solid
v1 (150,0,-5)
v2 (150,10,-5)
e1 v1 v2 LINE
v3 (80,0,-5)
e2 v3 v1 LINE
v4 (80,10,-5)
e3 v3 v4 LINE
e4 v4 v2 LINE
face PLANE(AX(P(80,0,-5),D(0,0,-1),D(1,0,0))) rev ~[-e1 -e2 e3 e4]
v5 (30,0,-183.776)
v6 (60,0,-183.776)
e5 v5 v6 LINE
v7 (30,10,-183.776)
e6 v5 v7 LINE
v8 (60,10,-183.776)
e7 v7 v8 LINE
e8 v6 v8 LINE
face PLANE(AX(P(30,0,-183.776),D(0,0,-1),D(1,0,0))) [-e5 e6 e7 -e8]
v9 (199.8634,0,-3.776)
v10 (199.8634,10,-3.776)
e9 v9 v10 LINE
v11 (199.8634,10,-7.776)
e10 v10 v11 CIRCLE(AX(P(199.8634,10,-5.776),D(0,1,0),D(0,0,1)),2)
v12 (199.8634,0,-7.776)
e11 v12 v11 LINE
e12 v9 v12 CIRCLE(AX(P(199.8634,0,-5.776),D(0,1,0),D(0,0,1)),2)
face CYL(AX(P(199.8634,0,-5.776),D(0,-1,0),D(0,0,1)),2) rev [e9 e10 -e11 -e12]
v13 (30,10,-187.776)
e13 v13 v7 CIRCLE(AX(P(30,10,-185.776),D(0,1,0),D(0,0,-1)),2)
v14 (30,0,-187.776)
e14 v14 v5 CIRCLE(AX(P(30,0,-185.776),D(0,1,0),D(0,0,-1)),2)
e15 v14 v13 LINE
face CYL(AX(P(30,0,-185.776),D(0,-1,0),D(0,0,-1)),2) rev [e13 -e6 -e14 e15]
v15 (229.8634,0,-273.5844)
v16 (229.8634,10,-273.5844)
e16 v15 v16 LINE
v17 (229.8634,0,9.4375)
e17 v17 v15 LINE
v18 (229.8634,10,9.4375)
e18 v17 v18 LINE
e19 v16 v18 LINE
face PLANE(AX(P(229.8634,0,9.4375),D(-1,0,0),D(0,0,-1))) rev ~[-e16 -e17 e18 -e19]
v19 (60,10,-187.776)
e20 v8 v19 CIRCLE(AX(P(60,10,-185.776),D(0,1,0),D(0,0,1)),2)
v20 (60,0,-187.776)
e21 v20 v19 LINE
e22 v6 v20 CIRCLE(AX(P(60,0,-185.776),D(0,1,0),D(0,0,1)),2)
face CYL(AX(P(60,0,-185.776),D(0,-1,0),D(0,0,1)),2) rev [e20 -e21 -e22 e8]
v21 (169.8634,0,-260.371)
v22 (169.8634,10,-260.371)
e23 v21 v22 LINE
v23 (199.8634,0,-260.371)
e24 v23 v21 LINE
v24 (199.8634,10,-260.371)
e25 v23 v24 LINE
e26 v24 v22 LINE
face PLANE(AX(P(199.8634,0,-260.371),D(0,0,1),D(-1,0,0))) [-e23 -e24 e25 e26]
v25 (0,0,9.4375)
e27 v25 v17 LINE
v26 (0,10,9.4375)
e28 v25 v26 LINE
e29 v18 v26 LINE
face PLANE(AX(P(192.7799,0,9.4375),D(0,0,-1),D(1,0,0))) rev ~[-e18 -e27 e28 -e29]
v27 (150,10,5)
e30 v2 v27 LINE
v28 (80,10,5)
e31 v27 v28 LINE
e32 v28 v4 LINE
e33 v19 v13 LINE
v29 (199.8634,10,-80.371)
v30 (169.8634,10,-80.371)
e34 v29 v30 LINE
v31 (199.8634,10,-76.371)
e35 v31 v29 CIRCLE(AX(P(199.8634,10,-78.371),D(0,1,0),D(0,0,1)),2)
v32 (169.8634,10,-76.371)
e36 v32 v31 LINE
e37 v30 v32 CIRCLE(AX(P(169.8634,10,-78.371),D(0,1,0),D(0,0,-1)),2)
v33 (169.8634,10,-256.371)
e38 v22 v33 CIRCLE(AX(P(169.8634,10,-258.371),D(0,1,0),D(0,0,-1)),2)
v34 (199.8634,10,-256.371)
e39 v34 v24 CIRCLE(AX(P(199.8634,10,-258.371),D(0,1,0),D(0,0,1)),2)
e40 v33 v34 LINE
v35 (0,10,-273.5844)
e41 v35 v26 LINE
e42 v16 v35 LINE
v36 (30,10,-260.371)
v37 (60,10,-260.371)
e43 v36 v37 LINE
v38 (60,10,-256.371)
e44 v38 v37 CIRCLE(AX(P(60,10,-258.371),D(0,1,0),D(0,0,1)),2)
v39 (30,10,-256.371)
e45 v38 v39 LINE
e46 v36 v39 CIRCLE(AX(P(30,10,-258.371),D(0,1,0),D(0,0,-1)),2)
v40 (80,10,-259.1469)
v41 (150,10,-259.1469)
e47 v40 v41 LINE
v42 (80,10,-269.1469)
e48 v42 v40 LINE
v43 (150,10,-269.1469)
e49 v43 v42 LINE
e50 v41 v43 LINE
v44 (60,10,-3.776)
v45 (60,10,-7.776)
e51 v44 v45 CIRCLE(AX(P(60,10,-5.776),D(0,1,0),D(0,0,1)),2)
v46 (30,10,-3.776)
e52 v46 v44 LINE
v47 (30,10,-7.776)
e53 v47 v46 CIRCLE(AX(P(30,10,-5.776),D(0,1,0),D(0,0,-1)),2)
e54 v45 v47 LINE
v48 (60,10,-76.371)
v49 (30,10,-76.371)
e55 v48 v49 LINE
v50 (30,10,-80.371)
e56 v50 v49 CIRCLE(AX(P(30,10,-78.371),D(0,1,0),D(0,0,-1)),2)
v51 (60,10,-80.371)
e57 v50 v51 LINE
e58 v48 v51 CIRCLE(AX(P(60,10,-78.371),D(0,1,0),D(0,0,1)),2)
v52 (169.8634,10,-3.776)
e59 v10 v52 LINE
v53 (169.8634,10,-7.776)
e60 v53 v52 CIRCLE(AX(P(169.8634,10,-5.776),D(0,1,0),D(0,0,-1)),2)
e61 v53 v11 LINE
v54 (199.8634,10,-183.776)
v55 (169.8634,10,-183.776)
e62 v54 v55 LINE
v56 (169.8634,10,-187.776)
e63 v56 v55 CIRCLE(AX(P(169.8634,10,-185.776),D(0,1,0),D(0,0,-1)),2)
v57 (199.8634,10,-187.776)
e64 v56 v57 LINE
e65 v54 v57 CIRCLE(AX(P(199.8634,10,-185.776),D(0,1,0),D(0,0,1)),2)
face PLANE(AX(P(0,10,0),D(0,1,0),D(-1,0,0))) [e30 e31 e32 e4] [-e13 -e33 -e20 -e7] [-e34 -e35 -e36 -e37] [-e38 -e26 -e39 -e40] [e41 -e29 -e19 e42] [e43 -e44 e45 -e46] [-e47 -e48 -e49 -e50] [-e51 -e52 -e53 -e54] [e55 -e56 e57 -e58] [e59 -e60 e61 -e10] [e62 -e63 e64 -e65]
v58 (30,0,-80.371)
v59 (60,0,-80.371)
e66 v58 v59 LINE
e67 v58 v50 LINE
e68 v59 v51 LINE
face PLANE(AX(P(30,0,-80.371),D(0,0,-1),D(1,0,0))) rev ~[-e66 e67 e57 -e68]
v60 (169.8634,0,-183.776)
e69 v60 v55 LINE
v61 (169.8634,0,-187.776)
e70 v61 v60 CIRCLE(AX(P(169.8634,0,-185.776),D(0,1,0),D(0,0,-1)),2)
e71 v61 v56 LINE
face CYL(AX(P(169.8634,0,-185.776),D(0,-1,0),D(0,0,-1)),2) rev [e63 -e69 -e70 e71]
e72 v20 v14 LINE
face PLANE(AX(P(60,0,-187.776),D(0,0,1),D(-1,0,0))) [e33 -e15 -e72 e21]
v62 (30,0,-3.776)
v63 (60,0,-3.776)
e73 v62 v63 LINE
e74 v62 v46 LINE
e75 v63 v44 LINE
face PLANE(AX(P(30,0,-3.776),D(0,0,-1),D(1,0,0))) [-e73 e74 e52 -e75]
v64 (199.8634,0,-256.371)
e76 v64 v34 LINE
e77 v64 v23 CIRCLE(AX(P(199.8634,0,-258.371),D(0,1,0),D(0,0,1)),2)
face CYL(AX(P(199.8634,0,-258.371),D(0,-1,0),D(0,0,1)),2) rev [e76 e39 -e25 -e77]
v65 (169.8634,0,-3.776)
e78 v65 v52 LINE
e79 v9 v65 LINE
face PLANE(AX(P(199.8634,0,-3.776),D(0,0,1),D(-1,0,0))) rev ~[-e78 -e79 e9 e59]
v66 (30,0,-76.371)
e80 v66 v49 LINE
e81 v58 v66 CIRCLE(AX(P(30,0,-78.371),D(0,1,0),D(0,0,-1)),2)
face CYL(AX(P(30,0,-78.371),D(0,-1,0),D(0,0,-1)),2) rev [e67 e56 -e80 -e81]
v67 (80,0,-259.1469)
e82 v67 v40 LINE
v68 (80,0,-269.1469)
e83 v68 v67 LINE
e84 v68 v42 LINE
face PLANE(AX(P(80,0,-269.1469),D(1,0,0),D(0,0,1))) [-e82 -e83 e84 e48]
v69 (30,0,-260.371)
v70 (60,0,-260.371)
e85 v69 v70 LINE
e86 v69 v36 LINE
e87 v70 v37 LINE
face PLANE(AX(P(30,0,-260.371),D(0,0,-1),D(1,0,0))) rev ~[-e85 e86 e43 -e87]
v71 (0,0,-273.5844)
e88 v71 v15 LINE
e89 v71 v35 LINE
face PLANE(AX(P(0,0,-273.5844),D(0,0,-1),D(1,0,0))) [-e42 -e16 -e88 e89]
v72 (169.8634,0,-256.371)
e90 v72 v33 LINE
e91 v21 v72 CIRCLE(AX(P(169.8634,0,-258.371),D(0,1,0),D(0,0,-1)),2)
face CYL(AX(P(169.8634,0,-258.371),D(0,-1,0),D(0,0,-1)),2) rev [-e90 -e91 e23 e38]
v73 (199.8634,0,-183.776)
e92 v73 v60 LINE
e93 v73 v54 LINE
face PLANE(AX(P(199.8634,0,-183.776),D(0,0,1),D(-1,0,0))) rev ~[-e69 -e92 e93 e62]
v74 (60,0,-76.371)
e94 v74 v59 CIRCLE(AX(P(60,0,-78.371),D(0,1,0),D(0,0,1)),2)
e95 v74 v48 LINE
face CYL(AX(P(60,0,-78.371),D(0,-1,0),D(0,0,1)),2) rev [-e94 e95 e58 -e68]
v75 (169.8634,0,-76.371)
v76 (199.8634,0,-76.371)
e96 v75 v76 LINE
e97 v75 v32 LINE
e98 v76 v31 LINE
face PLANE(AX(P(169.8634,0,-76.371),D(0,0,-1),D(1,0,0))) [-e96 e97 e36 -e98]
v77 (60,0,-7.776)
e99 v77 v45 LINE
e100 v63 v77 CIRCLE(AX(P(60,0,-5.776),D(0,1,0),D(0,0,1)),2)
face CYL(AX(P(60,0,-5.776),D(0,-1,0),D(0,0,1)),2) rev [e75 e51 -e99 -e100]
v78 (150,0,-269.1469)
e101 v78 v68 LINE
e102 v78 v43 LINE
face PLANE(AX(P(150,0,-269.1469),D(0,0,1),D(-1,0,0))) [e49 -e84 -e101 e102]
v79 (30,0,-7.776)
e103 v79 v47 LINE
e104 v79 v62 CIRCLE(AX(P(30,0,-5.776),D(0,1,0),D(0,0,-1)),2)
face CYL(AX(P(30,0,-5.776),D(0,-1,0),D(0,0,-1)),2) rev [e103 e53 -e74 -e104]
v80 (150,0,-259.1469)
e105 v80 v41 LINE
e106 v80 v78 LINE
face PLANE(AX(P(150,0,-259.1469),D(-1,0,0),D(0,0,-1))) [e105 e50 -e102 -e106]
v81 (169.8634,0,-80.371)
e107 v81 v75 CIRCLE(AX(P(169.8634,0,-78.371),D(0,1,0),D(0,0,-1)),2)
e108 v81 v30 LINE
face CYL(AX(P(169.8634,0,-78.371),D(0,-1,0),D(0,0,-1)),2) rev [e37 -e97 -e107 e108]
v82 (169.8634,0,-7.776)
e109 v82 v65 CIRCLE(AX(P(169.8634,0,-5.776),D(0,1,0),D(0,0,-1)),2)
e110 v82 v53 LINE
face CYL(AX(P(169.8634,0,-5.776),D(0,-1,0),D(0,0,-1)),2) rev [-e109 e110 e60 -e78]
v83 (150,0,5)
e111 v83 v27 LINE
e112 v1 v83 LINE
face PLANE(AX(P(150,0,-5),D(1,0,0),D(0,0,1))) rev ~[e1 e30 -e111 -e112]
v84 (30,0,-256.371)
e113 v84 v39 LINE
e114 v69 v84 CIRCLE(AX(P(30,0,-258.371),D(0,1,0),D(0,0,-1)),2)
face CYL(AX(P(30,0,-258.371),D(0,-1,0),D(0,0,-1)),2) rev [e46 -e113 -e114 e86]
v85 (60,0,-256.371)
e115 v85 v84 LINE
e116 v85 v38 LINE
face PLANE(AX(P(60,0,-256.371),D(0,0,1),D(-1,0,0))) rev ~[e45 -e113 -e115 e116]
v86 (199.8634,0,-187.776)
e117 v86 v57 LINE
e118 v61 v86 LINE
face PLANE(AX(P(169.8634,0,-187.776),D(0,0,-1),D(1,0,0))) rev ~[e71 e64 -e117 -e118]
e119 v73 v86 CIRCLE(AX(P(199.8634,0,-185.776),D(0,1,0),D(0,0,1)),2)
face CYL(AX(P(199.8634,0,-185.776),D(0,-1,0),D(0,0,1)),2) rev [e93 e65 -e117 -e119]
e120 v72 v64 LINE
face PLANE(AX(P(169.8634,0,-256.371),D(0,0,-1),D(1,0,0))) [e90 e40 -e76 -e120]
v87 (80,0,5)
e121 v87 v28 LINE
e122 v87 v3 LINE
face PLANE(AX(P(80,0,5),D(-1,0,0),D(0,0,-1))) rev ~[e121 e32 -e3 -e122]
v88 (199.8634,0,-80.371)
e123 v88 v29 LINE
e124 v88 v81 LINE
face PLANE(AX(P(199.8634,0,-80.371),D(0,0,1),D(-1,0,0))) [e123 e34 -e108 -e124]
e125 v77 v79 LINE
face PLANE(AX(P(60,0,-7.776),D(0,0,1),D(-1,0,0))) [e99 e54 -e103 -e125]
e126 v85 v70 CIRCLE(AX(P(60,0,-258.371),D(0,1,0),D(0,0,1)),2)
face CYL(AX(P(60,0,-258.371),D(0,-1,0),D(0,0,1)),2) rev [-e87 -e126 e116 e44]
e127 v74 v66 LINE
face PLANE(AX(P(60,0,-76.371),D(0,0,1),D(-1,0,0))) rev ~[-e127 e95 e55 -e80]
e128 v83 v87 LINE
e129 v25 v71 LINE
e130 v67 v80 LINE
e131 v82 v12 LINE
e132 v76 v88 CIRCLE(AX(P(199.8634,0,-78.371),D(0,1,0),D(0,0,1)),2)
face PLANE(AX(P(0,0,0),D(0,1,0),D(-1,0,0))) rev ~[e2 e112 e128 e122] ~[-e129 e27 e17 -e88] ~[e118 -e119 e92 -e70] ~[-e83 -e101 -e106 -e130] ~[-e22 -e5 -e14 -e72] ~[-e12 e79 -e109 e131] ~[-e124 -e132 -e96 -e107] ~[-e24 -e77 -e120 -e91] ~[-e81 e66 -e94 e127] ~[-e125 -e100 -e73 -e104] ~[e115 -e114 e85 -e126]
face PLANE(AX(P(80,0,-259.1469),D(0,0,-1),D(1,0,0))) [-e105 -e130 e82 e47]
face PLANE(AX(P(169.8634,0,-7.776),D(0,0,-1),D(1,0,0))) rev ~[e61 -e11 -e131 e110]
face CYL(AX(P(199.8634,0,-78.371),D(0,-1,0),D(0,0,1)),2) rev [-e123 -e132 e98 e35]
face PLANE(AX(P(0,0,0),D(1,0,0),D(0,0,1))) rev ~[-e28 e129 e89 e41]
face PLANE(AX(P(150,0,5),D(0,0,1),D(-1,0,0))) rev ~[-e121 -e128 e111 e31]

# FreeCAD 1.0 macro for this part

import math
import FreeCAD as App
import Part
import Sketcher
from FreeCAD import Vector


def add_polygon(sketch, points):
    """Adds a closed chain of lines whose ends are joined by coincident constraints."""
    first, n = sketch.GeometryCount, len(points)
    for a, b in zip(points, points[1:] + points[:1]):
        sketch.addGeometry(Part.LineSegment(App.Vector(*a, 0), App.Vector(*b, 0)), False)
    for i in range(n):
        sketch.addConstraint(Sketcher.Constraint("Coincident", first + i, 2, first + (i + 1) % n, 1))

doc = App.newDocument("Part")
params = doc.addObject("Spreadsheet::Sheet", "Params")
for row, (alias, value) in enumerate([
    ("pad1_length", "10 mm"),
    ("sketch2_radius", "2 mm"),
    ("sketch2_width", "30 mm"),
    ("pad2_length", "10 mm"),
    ("sketch4_width", "70 mm"),
    ("sketch4_height", "10 mm"),
    ("pocket2_length", "10 mm"),
    ("sketch5_radius", "2 mm"),
    ("sketch5_width", "30 mm"),
    ("pocket3_length", "10 mm"),
    ("sketch6_radius", "2 mm"),
    ("sketch6_width", "30 mm"),
    ("pocket4_length", "10 mm"),
], start=1):
    params.set(f"A{row}", alias)
    params.set(f"B{row}", "=" + value)
    params.setAlias(f"B{row}", alias)

body = doc.addObject("PartDesign::Body", "Body")

# Sketch on XZ plane
sketch1 = doc.addObject("Sketcher::SketchObject", "Sketch")
body.addObject(sketch1)
sketch1.AttachmentSupport = (doc.XZ_Plane, [""])
sketch1.MapMode = "FlatFace"
add_polygon(sketch1, [(229.8634, 9.4375), (229.8634, -273.5844), (0, -273.5844), (0, 9.4375)])  # lines 0-3
sketch1.addConstraint([
    Sketcher.Constraint("Vertical", 0),
    Sketcher.Constraint("Horizontal", 1),
    Sketcher.Constraint("Vertical", 2),
    Sketcher.Constraint("Horizontal", 3),
    Sketcher.Constraint("PointOnObject", 1, 2, -2),
    Sketcher.Constraint("DistanceX", 1, 2, 1, 1, 229.8634),
    Sketcher.Constraint("DistanceY", 0, 2, 0, 1, 283.022),
    Sketcher.Constraint("DistanceY", 0, 2, -1, 1, 273.5844),
])
pad1 = doc.addObject("PartDesign::Pad", "Pad")
body.addObject(pad1)
pad1.Profile = sketch1
pad1.setExpression("Length", "Params.pad1_length")
pad1.Reversed = True

# Sketch on XZ plane
sketch2 = doc.addObject("Sketcher::SketchObject", "Sketch001")
body.addObject(sketch2)
sketch2.AttachmentSupport = (doc.XZ_Plane, [""])
sketch2.MapMode = "FlatFace"
sketch2.addGeometry([
    Part.ArcOfCircle(Part.Circle(Vector(30, -5.776, 0), Vector(0, 0, 1), 2), math.radians(90), math.radians(270)),  # 0
    Part.LineSegment(Vector(30, -3.776, 0), Vector(60, -3.776, 0)),  # 1
    Part.ArcOfCircle(Part.Circle(Vector(60, -5.776, 0), Vector(0, 0, 1), 2), math.radians(-90), math.radians(90)),  # 2
    Part.LineSegment(Vector(60, -7.776, 0), Vector(30, -7.776, 0)),  # 3
    Part.LineSegment(Vector(60, -80.371, 0), Vector(30, -80.371, 0)),  # 4
    Part.ArcOfCircle(Part.Circle(Vector(30, -78.371, 0), Vector(0, 0, 1), 2), math.radians(90), math.radians(270)),  # 5
    Part.LineSegment(Vector(30, -76.371, 0), Vector(60, -76.371, 0)),  # 6
    Part.ArcOfCircle(Part.Circle(Vector(60, -78.371, 0), Vector(0, 0, 1), 2), math.radians(-90), math.radians(90)),  # 7
    Part.LineSegment(Vector(169.8634, -3.776, 0), Vector(199.8634, -3.776, 0)),  # 8
    Part.ArcOfCircle(Part.Circle(Vector(199.8634, -5.776, 0), Vector(0, 0, 1), 2), math.radians(-90), math.radians(90)),  # 9
    Part.LineSegment(Vector(199.8634, -7.776, 0), Vector(169.8634, -7.776, 0)),  # 10
    Part.ArcOfCircle(Part.Circle(Vector(169.8634, -5.776, 0), Vector(0, 0, 1), 2), math.radians(90), math.radians(270)),  # 11
    Part.LineSegment(Vector(199.8634, -80.371, 0), Vector(169.8634, -80.371, 0)),  # 12
    Part.ArcOfCircle(Part.Circle(Vector(169.8634, -78.371, 0), Vector(0, 0, 1), 2), math.radians(90), math.radians(270)),  # 13
    Part.LineSegment(Vector(169.8634, -76.371, 0), Vector(199.8634, -76.371, 0)),  # 14
    Part.ArcOfCircle(Part.Circle(Vector(199.8634, -78.371, 0), Vector(0, 0, 1), 2), math.radians(-90), math.radians(90)),  # 15
    Part.LineSegment(Vector(60, -260.371, 0), Vector(30, -260.371, 0)),  # 16
    Part.ArcOfCircle(Part.Circle(Vector(30, -258.371, 0), Vector(0, 0, 1), 2), math.radians(90), math.radians(270)),  # 17
    Part.LineSegment(Vector(30, -256.371, 0), Vector(60, -256.371, 0)),  # 18
    Part.ArcOfCircle(Part.Circle(Vector(60, -258.371, 0), Vector(0, 0, 1), 2), math.radians(-90), math.radians(90)),  # 19
    Part.LineSegment(Vector(30, -183.776, 0), Vector(60, -183.776, 0)),  # 20
    Part.ArcOfCircle(Part.Circle(Vector(60, -185.776, 0), Vector(0, 0, 1), 2), math.radians(-90), math.radians(90)),  # 21
    Part.LineSegment(Vector(60, -187.776, 0), Vector(30, -187.776, 0)),  # 22
    Part.ArcOfCircle(Part.Circle(Vector(30, -185.776, 0), Vector(0, 0, 1), 2), math.radians(90), math.radians(270)),  # 23
    Part.ArcOfCircle(Part.Circle(Vector(169.8634, -258.371, 0), Vector(0, 0, 1), 2), math.radians(90), math.radians(270)),  # 24
    Part.LineSegment(Vector(169.8634, -256.371, 0), Vector(199.8634, -256.371, 0)),  # 25
    Part.ArcOfCircle(Part.Circle(Vector(199.8634, -258.371, 0), Vector(0, 0, 1), 2), math.radians(-90), math.radians(90)),  # 26
    Part.LineSegment(Vector(199.8634, -260.371, 0), Vector(169.8634, -260.371, 0)),  # 27
    Part.LineSegment(Vector(199.8634, -187.776, 0), Vector(169.8634, -187.776, 0)),  # 28
    Part.ArcOfCircle(Part.Circle(Vector(169.8634, -185.776, 0), Vector(0, 0, 1), 2), math.radians(90), math.radians(270)),  # 29
    Part.LineSegment(Vector(169.8634, -183.776, 0), Vector(199.8634, -183.776, 0)),  # 30
    Part.ArcOfCircle(Part.Circle(Vector(199.8634, -185.776, 0), Vector(0, 0, 1), 2), math.radians(-90), math.radians(90)),  # 31
], False)
sketch2.addConstraint([
    Sketcher.Constraint("Tangent", 0, 1, 1, 1),
    Sketcher.Constraint("Tangent", 1, 2, 2, 2),
    Sketcher.Constraint("Tangent", 2, 1, 3, 1),
    Sketcher.Constraint("Tangent", 3, 2, 0, 2),
    Sketcher.Constraint("Tangent", 4, 2, 5, 2),
    Sketcher.Constraint("Tangent", 5, 1, 6, 1),
    Sketcher.Constraint("Tangent", 6, 2, 7, 2),
    Sketcher.Constraint("Tangent", 7, 1, 4, 1),
    Sketcher.Constraint("Tangent", 8, 2, 9, 2),
    Sketcher.Constraint("Tangent", 9, 1, 10, 1),
    Sketcher.Constraint("Tangent", 10, 2, 11, 2),
    Sketcher.Constraint("Tangent", 11, 1, 8, 1),
    Sketcher.Constraint("Tangent", 12, 2, 13, 2),
    Sketcher.Constraint("Tangent", 13, 1, 14, 1),
    Sketcher.Constraint("Tangent", 14, 2, 15, 2),
    Sketcher.Constraint("Tangent", 15, 1, 12, 1),
    Sketcher.Constraint("Tangent", 16, 2, 17, 2),
    Sketcher.Constraint("Tangent", 17, 1, 18, 1),
    Sketcher.Constraint("Tangent", 18, 2, 19, 2),
    Sketcher.Constraint("Tangent", 19, 1, 16, 1),
    Sketcher.Constraint("Tangent", 20, 2, 21, 2),
    Sketcher.Constraint("Tangent", 21, 1, 22, 1),
    Sketcher.Constraint("Tangent", 22, 2, 23, 2),
    Sketcher.Constraint("Tangent", 23, 1, 20, 1),
    Sketcher.Constraint("Tangent", 24, 1, 25, 1),
    Sketcher.Constraint("Tangent", 25, 2, 26, 2),
    Sketcher.Constraint("Tangent", 26, 1, 27, 1),
    Sketcher.Constraint("Tangent", 27, 2, 24, 2),
    Sketcher.Constraint("Tangent", 28, 2, 29, 2),
    Sketcher.Constraint("Tangent", 29, 1, 30, 1),
    Sketcher.Constraint("Tangent", 30, 2, 31, 2),
    Sketcher.Constraint("Tangent", 31, 1, 28, 1),
    Sketcher.Constraint("Horizontal", 1),
    Sketcher.Constraint("Horizontal", 3),
    Sketcher.Constraint("Horizontal", 4),
    Sketcher.Constraint("Horizontal", 6),
    Sketcher.Constraint("Horizontal", 8),
    Sketcher.Constraint("Horizontal", 10),
    Sketcher.Constraint("Horizontal", 12),
    Sketcher.Constraint("Horizontal", 14),
    Sketcher.Constraint("Horizontal", 16),
    Sketcher.Constraint("Horizontal", 18),
    Sketcher.Constraint("Horizontal", 20),
    Sketcher.Constraint("Horizontal", 22),
    Sketcher.Constraint("Horizontal", 25),
    Sketcher.Constraint("Horizontal", 27),
    Sketcher.Constraint("Horizontal", 28),
    Sketcher.Constraint("Horizontal", 30),
    Sketcher.Constraint("Equal", 2, 5),
    Sketcher.Constraint("Equal", 7, 9),
    Sketcher.Constraint("Equal", 11, 13),
    Sketcher.Constraint("Equal", 15, 17),
    Sketcher.Constraint("Equal", 19, 21),
    Sketcher.Constraint("Equal", 23, 24),
    Sketcher.Constraint("Equal", 26, 29),
    Sketcher.Constraint("Horizontal", 2, 3, 9, 3),
    Sketcher.Constraint("Horizontal", 7, 3, 13, 3),
    Sketcher.Constraint("Horizontal", 19, 3, 24, 3),
    Sketcher.Constraint("Horizontal", 23, 3, 29, 3),
    Sketcher.Constraint("Vertical", 0, 3, 5, 3),
    Sketcher.Constraint("Vertical", 2, 3, 7, 3),
    Sketcher.Constraint("Vertical", 11, 3, 13, 3),
    Sketcher.Constraint("Vertical", 9, 3, 15, 3),
    Sketcher.Constraint("Vertical", 5, 3, 17, 3),
    Sketcher.Constraint("Vertical", 7, 3, 19, 3),
    Sketcher.Constraint("Vertical", 19, 3, 21, 3),
    Sketcher.Constraint("Vertical", 17, 3, 23, 3),
    Sketcher.Constraint("Vertical", 13, 3, 24, 3),
    Sketcher.Constraint("Vertical", 15, 3, 26, 3),
    Sketcher.Constraint("Vertical", 24, 3, 29, 3),
    Sketcher.Constraint("Vertical", 26, 3, 31, 3),
    Sketcher.Constraint("Equal", 6, 8),
    Sketcher.Constraint("Radius", 0, 2.0),
    Sketcher.Constraint("DistanceX", 1, 1, 1, 2, 30.0),
    Sketcher.Constraint("DistanceX", -1, 1, 0, 3, 30.0),
    Sketcher.Constraint("DistanceY", 17, 3, 5, 3, 180.0),
    Sketcher.Constraint("DistanceY", 0, 3, -1, 1, 5.776),
    Sketcher.Constraint("DistanceY", 5, 3, -1, 1, 78.371),
    Sketcher.Constraint("DistanceY", 21, 3, -1, 1, 185.776),
    Sketcher.Constraint("DistanceX", -1, 1, 9, 3, 199.8634),
])
sketch2.setExpression("Constraints[72]", "Params.sketch2_radius")
sketch2.setExpression("Constraints[73]", "Params.sketch2_width")
pocket1 = doc.addObject("PartDesign::Pocket", "Pocket")
body.addObject(pocket1)
pocket1.Profile = sketch2
pocket1.Type = "ThroughAll"

# Sketch on XZ plane
sketch3 = doc.addObject("Sketcher::SketchObject", "Sketch002")
body.addObject(sketch3)
sketch3.AttachmentSupport = (doc.XZ_Plane, [""])
sketch3.MapMode = "FlatFace"
add_polygon(sketch3, [(229.8634, 9.4375), (229.8634, -273.5844), (0, -273.5844), (0, 9.4375)])  # lines 0-3
sketch3.addConstraint([
    Sketcher.Constraint("Vertical", 0),
    Sketcher.Constraint("Horizontal", 1),
    Sketcher.Constraint("Vertical", 2),
    Sketcher.Constraint("Horizontal", 3),
    Sketcher.Constraint("PointOnObject", 1, 2, -2),
    Sketcher.Constraint("DistanceX", 1, 2, 1, 1, 229.8634),
    Sketcher.Constraint("DistanceY", 0, 2, 0, 1, 283.022),
    Sketcher.Constraint("DistanceY", 0, 2, -1, 1, 273.5844),
])
pad2 = doc.addObject("PartDesign::Pad", "Pad001")
body.addObject(pad2)
pad2.Profile = sketch3
pad2.setExpression("Length", "Params.pad2_length")
pad2.Reversed = True

# Sketch on XZ plane
sketch4 = doc.addObject("Sketcher::SketchObject", "Sketch003")
body.addObject(sketch4)
sketch4.AttachmentSupport = (doc.XZ_Plane, [""])
sketch4.MapMode = "FlatFace"
add_polygon(sketch4, [(150, -5), (80, -5), (80, 5), (150, 5)])  # lines 0-3
add_polygon(sketch4, [(80, -269.1469), (80, -259.1469), (150, -259.1469), (150, -269.1469)])  # lines 4-7
sketch4.addConstraint([
    Sketcher.Constraint("Horizontal", 0),
    Sketcher.Constraint("Vertical", 1),
    Sketcher.Constraint("Horizontal", 2),
    Sketcher.Constraint("Vertical", 3),
    Sketcher.Constraint("Vertical", 4),
    Sketcher.Constraint("Horizontal", 5),
    Sketcher.Constraint("Vertical", 6),
    Sketcher.Constraint("Horizontal", 7),
    Sketcher.Constraint("Vertical", 1, 2, 4, 2),
    Sketcher.Constraint("Vertical", 3, 2, 5, 2),
    Sketcher.Constraint("Equal", 3, 4),
    Sketcher.Constraint("DistanceX", 0, 2, 0, 1, 70.0),
    Sketcher.Constraint("DistanceY", 1, 1, 1, 2, 10.0),
    Sketcher.Constraint("DistanceX", -1, 1, 0, 2, 80.0),
    Sketcher.Constraint("DistanceY", 0, 2, -1, 1, 5.0),
    Sketcher.Constraint("DistanceY", 4, 2, -1, 1, 259.147),
])
sketch4.setExpression("Constraints[19]", "Params.sketch4_width")
sketch4.setExpression("Constraints[20]", "Params.sketch4_height")
pocket2 = doc.addObject("PartDesign::Pocket", "Pocket001")
body.addObject(pocket2)
pocket2.Profile = sketch4
pocket2.setExpression("Length", "Params.pocket2_length")

# Sketch on XZ plane
sketch5 = doc.addObject("Sketcher::SketchObject", "Sketch004")
body.addObject(sketch5)
sketch5.AttachmentSupport = (doc.XZ_Plane, [""])
sketch5.MapMode = "FlatFace"
sketch5.addGeometry([
    Part.LineSegment(Vector(169.8634, -3.776, 0), Vector(199.8634, -3.776, 0)),
    Part.ArcOfCircle(Part.Circle(Vector(199.8634, -5.776, 0), Vector(0, 0, 1), 2), math.radians(-90), math.radians(90)),
    Part.LineSegment(Vector(199.8634, -7.776, 0), Vector(169.8634, -7.776, 0)),
    Part.ArcOfCircle(Part.Circle(Vector(169.8634, -5.776, 0), Vector(0, 0, 1), 2), math.radians(90), math.radians(270)),
], False)
sketch5.addConstraint([
    Sketcher.Constraint("Tangent", 0, 2, 1, 2),
    Sketcher.Constraint("Tangent", 1, 1, 2, 1),
    Sketcher.Constraint("Tangent", 2, 2, 3, 2),
    Sketcher.Constraint("Tangent", 3, 1, 0, 1),
    Sketcher.Constraint("Horizontal", 0),
    Sketcher.Constraint("Horizontal", 2),
    Sketcher.Constraint("Radius", 1, 2.0),
    Sketcher.Constraint("DistanceX", 0, 1, 0, 2, 30.0),
    Sketcher.Constraint("DistanceY", 1, 3, -1, 1, 5.776),
    Sketcher.Constraint("DistanceX", -1, 1, 1, 3, 199.8634),
])
sketch5.setExpression("Constraints[6]", "Params.sketch5_radius")
sketch5.setExpression("Constraints[7]", "Params.sketch5_width")
pocket3 = doc.addObject("PartDesign::Pocket", "Pocket002")
body.addObject(pocket3)
pocket3.Profile = sketch5
pocket3.setExpression("Length", "Params.pocket3_length")

# Sketch on XZ plane
sketch6 = doc.addObject("Sketcher::SketchObject", "Sketch005")
body.addObject(sketch6)
sketch6.AttachmentSupport = (doc.XZ_Plane, [""])
sketch6.MapMode = "FlatFace"
sketch6.addGeometry([
    Part.ArcOfCircle(Part.Circle(Vector(30, -5.776, 0), Vector(0, 0, 1), 2), math.radians(90), math.radians(270)),  # 0
    Part.LineSegment(Vector(30, -3.776, 0), Vector(60, -3.776, 0)),  # 1
    Part.ArcOfCircle(Part.Circle(Vector(60, -5.776, 0), Vector(0, 0, 1), 2), math.radians(-90), math.radians(90)),  # 2
    Part.LineSegment(Vector(60, -7.776, 0), Vector(30, -7.776, 0)),  # 3
    Part.LineSegment(Vector(60, -80.371, 0), Vector(30, -80.371, 0)),  # 4
    Part.ArcOfCircle(Part.Circle(Vector(30, -78.371, 0), Vector(0, 0, 1), 2), math.radians(90), math.radians(270)),  # 5
    Part.LineSegment(Vector(30, -76.371, 0), Vector(60, -76.371, 0)),  # 6
    Part.ArcOfCircle(Part.Circle(Vector(60, -78.371, 0), Vector(0, 0, 1), 2), math.radians(-90), math.radians(90)),  # 7
    Part.LineSegment(Vector(199.8634, -80.371, 0), Vector(169.8634, -80.371, 0)),  # 8
    Part.ArcOfCircle(Part.Circle(Vector(169.8634, -78.371, 0), Vector(0, 0, 1), 2), math.radians(90), math.radians(270)),  # 9
    Part.LineSegment(Vector(169.8634, -76.371, 0), Vector(199.8634, -76.371, 0)),  # 10
    Part.ArcOfCircle(Part.Circle(Vector(199.8634, -78.371, 0), Vector(0, 0, 1), 2), math.radians(-90), math.radians(90)),  # 11
    Part.LineSegment(Vector(60, -260.371, 0), Vector(30, -260.371, 0)),  # 12
    Part.ArcOfCircle(Part.Circle(Vector(30, -258.371, 0), Vector(0, 0, 1), 2), math.radians(90), math.radians(270)),  # 13
    Part.LineSegment(Vector(30, -256.371, 0), Vector(60, -256.371, 0)),  # 14
    Part.ArcOfCircle(Part.Circle(Vector(60, -258.371, 0), Vector(0, 0, 1), 2), math.radians(-90), math.radians(90)),  # 15
    Part.LineSegment(Vector(30, -183.776, 0), Vector(60, -183.776, 0)),  # 16
    Part.ArcOfCircle(Part.Circle(Vector(60, -185.776, 0), Vector(0, 0, 1), 2), math.radians(-90), math.radians(90)),  # 17
    Part.LineSegment(Vector(60, -187.776, 0), Vector(30, -187.776, 0)),  # 18
    Part.ArcOfCircle(Part.Circle(Vector(30, -185.776, 0), Vector(0, 0, 1), 2), math.radians(90), math.radians(270)),  # 19
    Part.ArcOfCircle(Part.Circle(Vector(169.8634, -258.371, 0), Vector(0, 0, 1), 2), math.radians(90), math.radians(270)),  # 20
    Part.LineSegment(Vector(169.8634, -256.371, 0), Vector(199.8634, -256.371, 0)),  # 21
    Part.ArcOfCircle(Part.Circle(Vector(199.8634, -258.371, 0), Vector(0, 0, 1), 2), math.radians(-90), math.radians(90)),  # 22
    Part.LineSegment(Vector(199.8634, -260.371, 0), Vector(169.8634, -260.371, 0)),  # 23
    Part.LineSegment(Vector(199.8634, -187.776, 0), Vector(169.8634, -187.776, 0)),  # 24
    Part.ArcOfCircle(Part.Circle(Vector(169.8634, -185.776, 0), Vector(0, 0, 1), 2), math.radians(90), math.radians(270)),  # 25
    Part.LineSegment(Vector(169.8634, -183.776, 0), Vector(199.8634, -183.776, 0)),  # 26
    Part.ArcOfCircle(Part.Circle(Vector(199.8634, -185.776, 0), Vector(0, 0, 1), 2), math.radians(-90), math.radians(90)),  # 27
], False)
sketch6.addConstraint([
    Sketcher.Constraint("Tangent", 0, 1, 1, 1),
    Sketcher.Constraint("Tangent", 1, 2, 2, 2),
    Sketcher.Constraint("Tangent", 2, 1, 3, 1),
    Sketcher.Constraint("Tangent", 3, 2, 0, 2),
    Sketcher.Constraint("Tangent", 4, 2, 5, 2),
    Sketcher.Constraint("Tangent", 5, 1, 6, 1),
    Sketcher.Constraint("Tangent", 6, 2, 7, 2),
    Sketcher.Constraint("Tangent", 7, 1, 4, 1),
    Sketcher.Constraint("Tangent", 8, 2, 9, 2),
    Sketcher.Constraint("Tangent", 9, 1, 10, 1),
    Sketcher.Constraint("Tangent", 10, 2, 11, 2),
    Sketcher.Constraint("Tangent", 11, 1, 8, 1),
    Sketcher.Constraint("Tangent", 12, 2, 13, 2),
    Sketcher.Constraint("Tangent", 13, 1, 14, 1),
    Sketcher.Constraint("Tangent", 14, 2, 15, 2),
    Sketcher.Constraint("Tangent", 15, 1, 12, 1),
    Sketcher.Constraint("Tangent", 16, 2, 17, 2),
    Sketcher.Constraint("Tangent", 17, 1, 18, 1),
    Sketcher.Constraint("Tangent", 18, 2, 19, 2),
    Sketcher.Constraint("Tangent", 19, 1, 16, 1),
    Sketcher.Constraint("Tangent", 20, 1, 21, 1),
    Sketcher.Constraint("Tangent", 21, 2, 22, 2),
    Sketcher.Constraint("Tangent", 22, 1, 23, 1),
    Sketcher.Constraint("Tangent", 23, 2, 20, 2),
    Sketcher.Constraint("Tangent", 24, 2, 25, 2),
    Sketcher.Constraint("Tangent", 25, 1, 26, 1),
    Sketcher.Constraint("Tangent", 26, 2, 27, 2),
    Sketcher.Constraint("Tangent", 27, 1, 24, 1),
    Sketcher.Constraint("Horizontal", 1),
    Sketcher.Constraint("Horizontal", 3),
    Sketcher.Constraint("Horizontal", 4),
    Sketcher.Constraint("Horizontal", 6),
    Sketcher.Constraint("Horizontal", 8),
    Sketcher.Constraint("Horizontal", 10),
    Sketcher.Constraint("Horizontal", 12),
    Sketcher.Constraint("Horizontal", 14),
    Sketcher.Constraint("Horizontal", 16),
    Sketcher.Constraint("Horizontal", 18),
    Sketcher.Constraint("Horizontal", 21),
    Sketcher.Constraint("Horizontal", 23),
    Sketcher.Constraint("Horizontal", 24),
    Sketcher.Constraint("Horizontal", 26),
    Sketcher.Constraint("Equal", 2, 5),
    Sketcher.Constraint("Equal", 7, 9),
    Sketcher.Constraint("Equal", 11, 13),
    Sketcher.Constraint("Equal", 15, 17),
    Sketcher.Constraint("Equal", 19, 20),
    Sketcher.Constraint("Equal", 22, 25),
    Sketcher.Constraint("Horizontal", 7, 3, 9, 3),
    Sketcher.Constraint("Horizontal", 15, 3, 20, 3),
    Sketcher.Constraint("Horizontal", 19, 3, 25, 3),
    Sketcher.Constraint("Vertical", 0, 3, 5, 3),
    Sketcher.Constraint("Vertical", 2, 3, 7, 3),
    Sketcher.Constraint("Vertical", 5, 3, 13, 3),
    Sketcher.Constraint("Vertical", 7, 3, 15, 3),
    Sketcher.Constraint("Vertical", 15, 3, 17, 3),
    Sketcher.Constraint("Vertical", 13, 3, 19, 3),
    Sketcher.Constraint("Vertical", 9, 3, 20, 3),
    Sketcher.Constraint("Vertical", 11, 3, 22, 3),
    Sketcher.Constraint("Vertical", 20, 3, 25, 3),
    Sketcher.Constraint("Vertical", 22, 3, 27, 3),
    Sketcher.Constraint("Equal", 6, 8),
    Sketcher.Constraint("Radius", 0, 2.0),
    Sketcher.Constraint("DistanceX", 1, 1, 1, 2, 30.0),
    Sketcher.Constraint("DistanceX", -1, 1, 0, 3, 30.0),
    Sketcher.Constraint("DistanceY", 13, 3, 5, 3, 180.0),
    Sketcher.Constraint("DistanceY", 0, 3, -1, 1, 5.776),
    Sketcher.Constraint("DistanceY", 5, 3, -1, 1, 78.371),
    Sketcher.Constraint("DistanceY", 17, 3, -1, 1, 185.776),
    Sketcher.Constraint("DistanceX", -1, 1, 9, 3, 169.8634),
])
sketch6.setExpression("Constraints[62]", "Params.sketch6_radius")
sketch6.setExpression("Constraints[63]", "Params.sketch6_width")
pocket4 = doc.addObject("PartDesign::Pocket", "Pocket003")
body.addObject(pocket4)
pocket4.Profile = sketch6
pocket4.setExpression("Length", "Params.pocket4_length")

doc.recompute()
